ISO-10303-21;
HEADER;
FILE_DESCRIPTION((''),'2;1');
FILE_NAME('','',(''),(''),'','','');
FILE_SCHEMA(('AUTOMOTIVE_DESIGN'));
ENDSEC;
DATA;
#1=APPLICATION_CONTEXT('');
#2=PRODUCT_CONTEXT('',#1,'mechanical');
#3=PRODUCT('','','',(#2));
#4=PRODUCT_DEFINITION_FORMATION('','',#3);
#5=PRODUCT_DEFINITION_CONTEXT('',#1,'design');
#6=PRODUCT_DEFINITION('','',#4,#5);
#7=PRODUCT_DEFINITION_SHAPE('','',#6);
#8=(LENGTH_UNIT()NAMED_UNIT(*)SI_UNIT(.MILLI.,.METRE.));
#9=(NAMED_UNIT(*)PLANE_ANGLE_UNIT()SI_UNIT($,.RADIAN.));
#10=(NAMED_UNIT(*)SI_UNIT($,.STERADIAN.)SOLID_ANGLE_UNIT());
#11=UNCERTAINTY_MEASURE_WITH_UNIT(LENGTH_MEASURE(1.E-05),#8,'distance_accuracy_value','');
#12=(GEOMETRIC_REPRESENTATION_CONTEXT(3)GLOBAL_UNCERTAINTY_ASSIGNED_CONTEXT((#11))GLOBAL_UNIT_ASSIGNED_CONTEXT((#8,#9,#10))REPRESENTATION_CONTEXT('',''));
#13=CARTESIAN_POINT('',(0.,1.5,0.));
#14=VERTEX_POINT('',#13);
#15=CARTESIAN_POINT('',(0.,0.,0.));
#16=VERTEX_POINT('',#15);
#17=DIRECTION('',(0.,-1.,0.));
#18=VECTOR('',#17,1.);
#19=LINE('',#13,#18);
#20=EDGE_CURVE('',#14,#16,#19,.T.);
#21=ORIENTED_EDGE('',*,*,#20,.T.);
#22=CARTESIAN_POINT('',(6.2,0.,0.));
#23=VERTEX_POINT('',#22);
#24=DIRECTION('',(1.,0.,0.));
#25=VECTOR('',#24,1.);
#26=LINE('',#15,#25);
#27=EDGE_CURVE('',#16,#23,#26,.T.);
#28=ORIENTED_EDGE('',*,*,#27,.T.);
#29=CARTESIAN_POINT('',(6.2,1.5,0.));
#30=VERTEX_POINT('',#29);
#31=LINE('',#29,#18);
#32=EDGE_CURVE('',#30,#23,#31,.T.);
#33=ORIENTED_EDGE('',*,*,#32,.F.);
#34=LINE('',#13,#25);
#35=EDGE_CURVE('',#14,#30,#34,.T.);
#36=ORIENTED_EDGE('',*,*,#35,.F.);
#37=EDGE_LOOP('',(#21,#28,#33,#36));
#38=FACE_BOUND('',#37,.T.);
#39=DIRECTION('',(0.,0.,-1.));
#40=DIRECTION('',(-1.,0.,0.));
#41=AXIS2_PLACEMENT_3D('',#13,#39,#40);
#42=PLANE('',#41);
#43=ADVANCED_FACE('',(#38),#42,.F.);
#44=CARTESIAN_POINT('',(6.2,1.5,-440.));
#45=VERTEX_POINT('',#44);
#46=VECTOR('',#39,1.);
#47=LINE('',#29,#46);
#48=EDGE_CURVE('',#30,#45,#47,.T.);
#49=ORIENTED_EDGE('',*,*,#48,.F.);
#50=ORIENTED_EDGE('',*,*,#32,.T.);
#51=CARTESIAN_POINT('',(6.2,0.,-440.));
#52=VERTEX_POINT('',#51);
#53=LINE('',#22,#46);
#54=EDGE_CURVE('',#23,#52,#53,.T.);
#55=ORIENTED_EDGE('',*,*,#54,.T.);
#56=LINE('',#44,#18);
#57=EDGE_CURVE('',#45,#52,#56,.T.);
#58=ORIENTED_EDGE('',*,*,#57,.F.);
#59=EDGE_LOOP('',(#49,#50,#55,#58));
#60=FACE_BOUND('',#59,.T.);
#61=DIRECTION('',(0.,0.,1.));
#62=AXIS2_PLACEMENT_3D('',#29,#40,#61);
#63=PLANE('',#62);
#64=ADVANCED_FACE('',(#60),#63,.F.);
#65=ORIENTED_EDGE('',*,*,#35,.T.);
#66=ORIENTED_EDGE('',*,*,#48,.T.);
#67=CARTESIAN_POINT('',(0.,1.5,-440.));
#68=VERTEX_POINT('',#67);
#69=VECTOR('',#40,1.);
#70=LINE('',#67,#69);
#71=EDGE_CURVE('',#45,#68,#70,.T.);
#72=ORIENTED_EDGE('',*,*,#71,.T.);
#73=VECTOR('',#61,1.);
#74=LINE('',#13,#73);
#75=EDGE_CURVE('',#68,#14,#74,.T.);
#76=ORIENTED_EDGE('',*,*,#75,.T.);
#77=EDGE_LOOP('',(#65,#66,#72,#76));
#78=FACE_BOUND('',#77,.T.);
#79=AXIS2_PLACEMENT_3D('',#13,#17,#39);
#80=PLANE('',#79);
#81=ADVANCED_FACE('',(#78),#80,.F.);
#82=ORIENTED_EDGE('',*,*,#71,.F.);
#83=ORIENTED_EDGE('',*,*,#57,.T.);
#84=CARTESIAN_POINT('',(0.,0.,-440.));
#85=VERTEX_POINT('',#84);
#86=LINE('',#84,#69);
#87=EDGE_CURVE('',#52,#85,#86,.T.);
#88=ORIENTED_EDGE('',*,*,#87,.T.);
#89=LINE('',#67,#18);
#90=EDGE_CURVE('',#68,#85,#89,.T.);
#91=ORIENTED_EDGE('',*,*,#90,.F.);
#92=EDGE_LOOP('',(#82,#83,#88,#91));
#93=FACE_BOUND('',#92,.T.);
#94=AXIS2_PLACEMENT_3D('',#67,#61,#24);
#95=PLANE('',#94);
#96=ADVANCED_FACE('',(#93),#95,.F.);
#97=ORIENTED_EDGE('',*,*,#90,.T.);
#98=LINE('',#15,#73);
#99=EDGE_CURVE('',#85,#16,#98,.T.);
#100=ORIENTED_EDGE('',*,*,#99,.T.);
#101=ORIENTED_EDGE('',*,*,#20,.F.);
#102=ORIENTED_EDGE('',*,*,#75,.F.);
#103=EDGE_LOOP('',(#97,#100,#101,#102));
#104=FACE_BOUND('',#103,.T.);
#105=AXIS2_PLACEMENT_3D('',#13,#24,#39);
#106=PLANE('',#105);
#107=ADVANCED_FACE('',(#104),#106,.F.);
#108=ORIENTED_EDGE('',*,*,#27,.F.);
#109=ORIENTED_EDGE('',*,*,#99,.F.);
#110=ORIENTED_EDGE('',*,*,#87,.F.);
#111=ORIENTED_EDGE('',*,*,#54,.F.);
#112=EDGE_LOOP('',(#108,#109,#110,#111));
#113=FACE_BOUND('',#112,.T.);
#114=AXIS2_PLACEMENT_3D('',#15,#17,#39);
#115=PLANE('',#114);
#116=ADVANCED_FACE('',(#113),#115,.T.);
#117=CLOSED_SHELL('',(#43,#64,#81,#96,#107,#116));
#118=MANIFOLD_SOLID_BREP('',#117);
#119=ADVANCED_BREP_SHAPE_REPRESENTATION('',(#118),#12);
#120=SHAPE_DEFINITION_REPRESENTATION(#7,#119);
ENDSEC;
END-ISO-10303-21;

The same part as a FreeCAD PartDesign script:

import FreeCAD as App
import Part
import Sketcher
from FreeCAD import Vector

doc = App.newDocument("Part")
params = doc.addObject("Spreadsheet::Sheet", "Params")
for row, (alias, value) in enumerate([
    ("sketch1_height", "440 mm"),
    ("sketch1_width", "6.2 mm"),
    ("pad1_length", "1.5 mm"),
], start=1):
    params.set(f"A{row}", alias)
    params.set(f"B{row}", "=" + value)
    params.setAlias(f"B{row}", alias)

body = doc.addObject("PartDesign::Body", "Body")

sketch1 = body.newObject("Sketcher::SketchObject", "Sketch")
sketch1.AttachmentSupport = (doc.getObject("XZ_Plane"), [""])
sketch1.MapMode = "FlatFace"
sketch1.addGeometry(Part.LineSegment(Vector(0, -440, 0), Vector(0, 0, 0)), False)
sketch1.addGeometry(Part.LineSegment(Vector(0, 0, 0), Vector(6, 0, 0)), False)
sketch1.addGeometry(Part.LineSegment(Vector(6, 0, 0), Vector(6, -440, 0)), False)
sketch1.addGeometry(Part.LineSegment(Vector(6, -440, 0), Vector(0, -440, 0)), False)
sketch1.addConstraint(Sketcher.Constraint("Coincident", 0, 2, 1, 1))
sketch1.addConstraint(Sketcher.Constraint("Coincident", 1, 2, 2, 1))
sketch1.addConstraint(Sketcher.Constraint("Coincident", 2, 2, 3, 1))
sketch1.addConstraint(Sketcher.Constraint("Coincident", 3, 2, 0, 1))
sketch1.addConstraint(Sketcher.Constraint("Vertical", 0))
sketch1.addConstraint(Sketcher.Constraint("Horizontal", 1))
sketch1.addConstraint(Sketcher.Constraint("Vertical", 2))
sketch1.addConstraint(Sketcher.Constraint("Horizontal", 3))
sketch1.addConstraint(Sketcher.Constraint("Coincident", 0, 2, -1, 1))
sketch1.addConstraint(Sketcher.Constraint("DistanceY", 0, 1, 0, 2, 440.0))
sketch1.addConstraint(Sketcher.Constraint("DistanceX", 1, 1, 1, 2, 6.2))
sketch1.setExpression("Constraints[9]", "Params.sketch1_height")
sketch1.setExpression("Constraints[10]", "Params.sketch1_width")
pad1 = body.newObject("PartDesign::Pad", "Pad")
pad1.Profile = sketch1
pad1.setExpression("Length", "Params.pad1_length")
pad1.Reversed = True

doc.recompute()
